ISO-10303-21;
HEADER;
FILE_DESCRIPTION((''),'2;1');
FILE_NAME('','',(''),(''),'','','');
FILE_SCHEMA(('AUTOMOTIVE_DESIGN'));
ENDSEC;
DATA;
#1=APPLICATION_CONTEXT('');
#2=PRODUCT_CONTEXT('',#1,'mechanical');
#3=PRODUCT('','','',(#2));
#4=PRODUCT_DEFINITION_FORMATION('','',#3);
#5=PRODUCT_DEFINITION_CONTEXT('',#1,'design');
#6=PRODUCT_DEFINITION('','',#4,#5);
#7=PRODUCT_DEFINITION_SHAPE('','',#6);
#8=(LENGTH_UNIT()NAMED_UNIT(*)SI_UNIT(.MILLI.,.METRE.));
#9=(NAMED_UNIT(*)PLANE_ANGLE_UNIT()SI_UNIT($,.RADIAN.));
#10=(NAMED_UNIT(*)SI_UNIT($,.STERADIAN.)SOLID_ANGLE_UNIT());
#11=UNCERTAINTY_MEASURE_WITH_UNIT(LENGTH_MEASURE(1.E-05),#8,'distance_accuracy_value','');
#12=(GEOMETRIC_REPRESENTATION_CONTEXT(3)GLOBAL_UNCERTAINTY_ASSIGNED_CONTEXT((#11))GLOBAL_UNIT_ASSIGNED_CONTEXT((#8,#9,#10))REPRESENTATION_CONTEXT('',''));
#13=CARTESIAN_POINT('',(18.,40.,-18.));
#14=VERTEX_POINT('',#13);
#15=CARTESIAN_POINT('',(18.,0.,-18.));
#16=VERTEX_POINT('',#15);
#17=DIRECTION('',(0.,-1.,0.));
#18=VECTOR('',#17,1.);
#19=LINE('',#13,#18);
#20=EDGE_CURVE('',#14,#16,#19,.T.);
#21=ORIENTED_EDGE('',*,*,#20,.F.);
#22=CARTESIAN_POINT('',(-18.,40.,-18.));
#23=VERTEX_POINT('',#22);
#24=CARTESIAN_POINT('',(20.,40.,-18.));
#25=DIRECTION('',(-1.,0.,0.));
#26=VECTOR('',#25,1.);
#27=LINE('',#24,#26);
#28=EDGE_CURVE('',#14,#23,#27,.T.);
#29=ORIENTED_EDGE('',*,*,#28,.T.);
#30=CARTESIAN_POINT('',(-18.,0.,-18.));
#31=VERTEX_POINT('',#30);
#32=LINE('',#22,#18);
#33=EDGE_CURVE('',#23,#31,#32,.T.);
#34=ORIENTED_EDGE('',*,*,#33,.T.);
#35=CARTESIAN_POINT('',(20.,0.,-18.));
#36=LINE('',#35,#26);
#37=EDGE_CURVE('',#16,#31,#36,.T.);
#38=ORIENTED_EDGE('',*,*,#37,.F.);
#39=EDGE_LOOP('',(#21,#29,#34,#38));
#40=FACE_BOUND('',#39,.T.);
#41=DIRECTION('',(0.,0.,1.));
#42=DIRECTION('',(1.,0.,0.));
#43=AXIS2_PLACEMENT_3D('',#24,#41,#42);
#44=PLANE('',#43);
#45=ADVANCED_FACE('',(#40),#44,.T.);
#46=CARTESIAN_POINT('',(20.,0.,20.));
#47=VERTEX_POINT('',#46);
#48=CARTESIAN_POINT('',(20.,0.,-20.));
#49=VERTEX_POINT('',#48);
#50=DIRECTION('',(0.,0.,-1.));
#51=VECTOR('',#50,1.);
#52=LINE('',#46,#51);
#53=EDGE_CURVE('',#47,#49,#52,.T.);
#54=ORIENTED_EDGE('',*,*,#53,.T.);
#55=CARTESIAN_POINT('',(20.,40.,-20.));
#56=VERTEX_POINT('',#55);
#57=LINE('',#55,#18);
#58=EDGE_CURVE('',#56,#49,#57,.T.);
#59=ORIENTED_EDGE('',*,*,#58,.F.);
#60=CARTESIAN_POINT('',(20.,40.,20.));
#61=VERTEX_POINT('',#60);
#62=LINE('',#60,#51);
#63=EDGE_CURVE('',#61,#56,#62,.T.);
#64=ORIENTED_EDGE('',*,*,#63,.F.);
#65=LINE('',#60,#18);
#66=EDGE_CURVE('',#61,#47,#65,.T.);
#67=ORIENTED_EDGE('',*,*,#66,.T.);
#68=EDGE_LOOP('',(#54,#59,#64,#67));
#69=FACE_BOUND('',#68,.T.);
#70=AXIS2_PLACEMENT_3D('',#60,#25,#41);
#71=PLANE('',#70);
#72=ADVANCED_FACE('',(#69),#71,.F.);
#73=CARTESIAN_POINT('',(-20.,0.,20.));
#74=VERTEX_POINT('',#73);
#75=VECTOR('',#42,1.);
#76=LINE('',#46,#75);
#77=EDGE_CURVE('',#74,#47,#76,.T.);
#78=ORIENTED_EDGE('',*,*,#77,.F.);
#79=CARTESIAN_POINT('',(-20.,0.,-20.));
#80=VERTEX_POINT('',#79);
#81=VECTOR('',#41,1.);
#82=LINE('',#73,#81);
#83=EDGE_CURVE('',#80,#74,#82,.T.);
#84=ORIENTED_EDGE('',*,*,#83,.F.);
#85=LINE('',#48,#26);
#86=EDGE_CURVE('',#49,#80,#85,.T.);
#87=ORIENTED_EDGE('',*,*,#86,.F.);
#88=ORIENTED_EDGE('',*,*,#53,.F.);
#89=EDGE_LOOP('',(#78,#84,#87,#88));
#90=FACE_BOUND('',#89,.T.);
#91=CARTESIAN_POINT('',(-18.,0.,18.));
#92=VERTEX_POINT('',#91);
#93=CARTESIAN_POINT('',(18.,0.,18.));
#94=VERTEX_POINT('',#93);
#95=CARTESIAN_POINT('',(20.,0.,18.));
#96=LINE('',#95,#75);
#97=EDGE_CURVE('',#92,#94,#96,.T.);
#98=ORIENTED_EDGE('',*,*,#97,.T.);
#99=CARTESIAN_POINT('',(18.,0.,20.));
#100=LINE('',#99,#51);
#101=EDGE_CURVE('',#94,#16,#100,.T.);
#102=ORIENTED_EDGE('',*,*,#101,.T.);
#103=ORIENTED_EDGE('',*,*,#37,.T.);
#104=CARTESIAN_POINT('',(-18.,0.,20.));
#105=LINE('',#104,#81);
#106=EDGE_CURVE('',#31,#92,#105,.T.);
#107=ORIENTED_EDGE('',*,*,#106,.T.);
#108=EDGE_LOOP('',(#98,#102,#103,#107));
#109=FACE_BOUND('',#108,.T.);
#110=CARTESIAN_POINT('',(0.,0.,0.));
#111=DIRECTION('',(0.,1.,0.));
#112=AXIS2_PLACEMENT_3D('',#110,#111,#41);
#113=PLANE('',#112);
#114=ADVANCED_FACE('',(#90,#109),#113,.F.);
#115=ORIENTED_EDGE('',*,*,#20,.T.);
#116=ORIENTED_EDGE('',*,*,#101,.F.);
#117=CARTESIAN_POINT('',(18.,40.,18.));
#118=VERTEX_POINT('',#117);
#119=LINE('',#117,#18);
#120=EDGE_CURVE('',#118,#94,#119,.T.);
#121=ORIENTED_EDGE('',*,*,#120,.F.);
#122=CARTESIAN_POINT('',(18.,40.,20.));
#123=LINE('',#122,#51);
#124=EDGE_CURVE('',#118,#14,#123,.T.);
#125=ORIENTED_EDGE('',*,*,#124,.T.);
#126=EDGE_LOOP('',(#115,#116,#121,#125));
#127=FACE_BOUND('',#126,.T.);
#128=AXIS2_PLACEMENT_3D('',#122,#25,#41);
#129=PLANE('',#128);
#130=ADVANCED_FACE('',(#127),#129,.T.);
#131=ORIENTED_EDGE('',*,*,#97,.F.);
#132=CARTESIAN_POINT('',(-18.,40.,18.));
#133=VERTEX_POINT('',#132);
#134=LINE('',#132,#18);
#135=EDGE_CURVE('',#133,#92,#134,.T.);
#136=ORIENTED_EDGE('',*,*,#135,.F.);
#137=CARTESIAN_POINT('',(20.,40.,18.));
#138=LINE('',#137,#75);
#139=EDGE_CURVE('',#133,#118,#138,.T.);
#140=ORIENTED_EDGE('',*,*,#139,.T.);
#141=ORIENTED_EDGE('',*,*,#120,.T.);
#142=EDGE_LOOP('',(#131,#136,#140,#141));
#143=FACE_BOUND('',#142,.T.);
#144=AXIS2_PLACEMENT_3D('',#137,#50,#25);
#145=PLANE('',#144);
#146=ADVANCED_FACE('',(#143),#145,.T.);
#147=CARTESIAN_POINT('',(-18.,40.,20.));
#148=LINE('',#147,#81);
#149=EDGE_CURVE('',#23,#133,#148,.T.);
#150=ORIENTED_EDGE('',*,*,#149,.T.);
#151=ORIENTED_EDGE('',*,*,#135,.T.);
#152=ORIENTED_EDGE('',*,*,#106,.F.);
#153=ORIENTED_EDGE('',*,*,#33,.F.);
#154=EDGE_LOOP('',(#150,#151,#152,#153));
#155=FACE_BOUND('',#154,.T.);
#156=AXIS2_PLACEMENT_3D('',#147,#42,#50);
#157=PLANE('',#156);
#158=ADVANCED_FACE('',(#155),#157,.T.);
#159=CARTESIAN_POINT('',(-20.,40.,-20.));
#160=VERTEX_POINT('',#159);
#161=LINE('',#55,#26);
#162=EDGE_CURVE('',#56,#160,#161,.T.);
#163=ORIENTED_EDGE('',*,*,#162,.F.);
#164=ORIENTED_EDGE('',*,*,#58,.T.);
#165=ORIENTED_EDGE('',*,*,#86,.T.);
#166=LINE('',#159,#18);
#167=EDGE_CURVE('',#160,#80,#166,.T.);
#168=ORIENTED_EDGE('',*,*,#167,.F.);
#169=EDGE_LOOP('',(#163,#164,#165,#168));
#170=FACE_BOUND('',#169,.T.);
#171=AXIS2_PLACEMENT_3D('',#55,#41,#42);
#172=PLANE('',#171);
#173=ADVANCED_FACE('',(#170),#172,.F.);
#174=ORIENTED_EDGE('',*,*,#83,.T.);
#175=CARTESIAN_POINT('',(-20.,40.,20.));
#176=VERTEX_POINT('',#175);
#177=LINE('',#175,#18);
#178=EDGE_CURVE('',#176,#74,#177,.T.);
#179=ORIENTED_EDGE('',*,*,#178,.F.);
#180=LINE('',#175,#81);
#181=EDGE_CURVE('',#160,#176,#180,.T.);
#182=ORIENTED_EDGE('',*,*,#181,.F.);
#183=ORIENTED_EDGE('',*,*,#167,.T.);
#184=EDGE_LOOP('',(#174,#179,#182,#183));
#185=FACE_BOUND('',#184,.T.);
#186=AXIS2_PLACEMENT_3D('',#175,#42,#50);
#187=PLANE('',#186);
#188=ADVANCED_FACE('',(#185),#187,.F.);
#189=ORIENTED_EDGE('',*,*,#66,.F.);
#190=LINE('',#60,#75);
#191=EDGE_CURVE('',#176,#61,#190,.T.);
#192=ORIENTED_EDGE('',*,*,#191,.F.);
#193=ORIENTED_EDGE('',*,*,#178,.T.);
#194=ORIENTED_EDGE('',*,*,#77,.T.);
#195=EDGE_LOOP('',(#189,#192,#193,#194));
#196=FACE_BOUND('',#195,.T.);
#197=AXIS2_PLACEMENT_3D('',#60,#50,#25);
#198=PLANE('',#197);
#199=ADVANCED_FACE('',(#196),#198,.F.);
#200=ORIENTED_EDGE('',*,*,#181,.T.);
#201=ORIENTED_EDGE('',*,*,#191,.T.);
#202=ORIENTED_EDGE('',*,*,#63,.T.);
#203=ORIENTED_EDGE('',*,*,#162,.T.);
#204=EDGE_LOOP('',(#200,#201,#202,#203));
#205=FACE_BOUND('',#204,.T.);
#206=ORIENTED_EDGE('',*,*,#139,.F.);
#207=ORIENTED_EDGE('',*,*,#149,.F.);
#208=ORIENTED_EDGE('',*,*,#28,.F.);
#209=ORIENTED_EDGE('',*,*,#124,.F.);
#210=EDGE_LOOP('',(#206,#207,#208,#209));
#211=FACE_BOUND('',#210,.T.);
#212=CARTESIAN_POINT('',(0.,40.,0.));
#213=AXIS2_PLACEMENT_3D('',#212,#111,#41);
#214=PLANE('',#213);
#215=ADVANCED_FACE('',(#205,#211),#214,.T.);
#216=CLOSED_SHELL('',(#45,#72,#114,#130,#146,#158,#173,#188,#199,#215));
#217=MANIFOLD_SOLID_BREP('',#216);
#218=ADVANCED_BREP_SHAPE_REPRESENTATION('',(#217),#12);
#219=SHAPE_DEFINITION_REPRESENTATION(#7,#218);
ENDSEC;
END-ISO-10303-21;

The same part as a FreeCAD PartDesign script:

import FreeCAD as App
import Part
import Sketcher

V = App.Vector
Q = App.Units.Quantity


def add_polygon(sketch, points):
    """Adds a closed chain of lines whose ends are joined by coincident constraints."""
    first, n = sketch.GeometryCount, len(points)
    for a, b in zip(points, points[1:] + points[:1]):
        sketch.addGeometry(Part.LineSegment(App.Vector(*a, 0), App.Vector(*b, 0)), False)
    for i in range(n):
        sketch.addConstraint(Sketcher.Constraint("Coincident", first + i, 2, first + (i + 1) % n, 1))

doc = App.newDocument("Part")
body = doc.addObject("PartDesign::Body", "Body")

# Sketch on XZ plane
sketch1 = body.newObject("Sketcher::SketchObject", "Sketch")
sketch1.AttachmentSupport = (doc.getObject("XZ_Plane"), [""])
sketch1.MapMode = "FlatFace"
add_polygon(sketch1, [(-20, -20), (-20, 20), (20, 20), (20, -20)])  # lines 0-3
add_polygon(sketch1, [(18, 18), (-18, 18), (-18, -18), (18, -18)])  # lines 4-7
sketch1.addConstraint(Sketcher.Constraint("Vertical", 0))
sketch1.addConstraint(Sketcher.Constraint("Horizontal", 1))
sketch1.addConstraint(Sketcher.Constraint("Vertical", 2))
sketch1.addConstraint(Sketcher.Constraint("Horizontal", 3))
sketch1.addConstraint(Sketcher.Constraint("Horizontal", 4))
sketch1.addConstraint(Sketcher.Constraint("Vertical", 5))
sketch1.addConstraint(Sketcher.Constraint("Horizontal", 6))
sketch1.addConstraint(Sketcher.Constraint("Vertical", 7))
sketch1.addConstraint(Sketcher.Constraint("Symmetric", 0, 2, 2, 2, -1, 1))
sketch1.addConstraint(Sketcher.Constraint("Symmetric", 4, 2, 6, 2, -1, 1))
sketch1.addConstraint(Sketcher.Constraint("Equal", 3, 0))
sketch1.addConstraint(Sketcher.Constraint("Equal", 6, 5))
sketch1.addConstraint(Sketcher.Constraint("DistanceX", 1, 1, 1, 2, Q("40 mm")))
sketch1.addConstraint(Sketcher.Constraint("DistanceX", 4, 2, 4, 1, Q("36 mm")))
pad1 = body.newObject("PartDesign::Pad", "Pad")
pad1.Profile = sketch1
pad1.Length = 40
pad1.Reversed = True

doc.recompute()
